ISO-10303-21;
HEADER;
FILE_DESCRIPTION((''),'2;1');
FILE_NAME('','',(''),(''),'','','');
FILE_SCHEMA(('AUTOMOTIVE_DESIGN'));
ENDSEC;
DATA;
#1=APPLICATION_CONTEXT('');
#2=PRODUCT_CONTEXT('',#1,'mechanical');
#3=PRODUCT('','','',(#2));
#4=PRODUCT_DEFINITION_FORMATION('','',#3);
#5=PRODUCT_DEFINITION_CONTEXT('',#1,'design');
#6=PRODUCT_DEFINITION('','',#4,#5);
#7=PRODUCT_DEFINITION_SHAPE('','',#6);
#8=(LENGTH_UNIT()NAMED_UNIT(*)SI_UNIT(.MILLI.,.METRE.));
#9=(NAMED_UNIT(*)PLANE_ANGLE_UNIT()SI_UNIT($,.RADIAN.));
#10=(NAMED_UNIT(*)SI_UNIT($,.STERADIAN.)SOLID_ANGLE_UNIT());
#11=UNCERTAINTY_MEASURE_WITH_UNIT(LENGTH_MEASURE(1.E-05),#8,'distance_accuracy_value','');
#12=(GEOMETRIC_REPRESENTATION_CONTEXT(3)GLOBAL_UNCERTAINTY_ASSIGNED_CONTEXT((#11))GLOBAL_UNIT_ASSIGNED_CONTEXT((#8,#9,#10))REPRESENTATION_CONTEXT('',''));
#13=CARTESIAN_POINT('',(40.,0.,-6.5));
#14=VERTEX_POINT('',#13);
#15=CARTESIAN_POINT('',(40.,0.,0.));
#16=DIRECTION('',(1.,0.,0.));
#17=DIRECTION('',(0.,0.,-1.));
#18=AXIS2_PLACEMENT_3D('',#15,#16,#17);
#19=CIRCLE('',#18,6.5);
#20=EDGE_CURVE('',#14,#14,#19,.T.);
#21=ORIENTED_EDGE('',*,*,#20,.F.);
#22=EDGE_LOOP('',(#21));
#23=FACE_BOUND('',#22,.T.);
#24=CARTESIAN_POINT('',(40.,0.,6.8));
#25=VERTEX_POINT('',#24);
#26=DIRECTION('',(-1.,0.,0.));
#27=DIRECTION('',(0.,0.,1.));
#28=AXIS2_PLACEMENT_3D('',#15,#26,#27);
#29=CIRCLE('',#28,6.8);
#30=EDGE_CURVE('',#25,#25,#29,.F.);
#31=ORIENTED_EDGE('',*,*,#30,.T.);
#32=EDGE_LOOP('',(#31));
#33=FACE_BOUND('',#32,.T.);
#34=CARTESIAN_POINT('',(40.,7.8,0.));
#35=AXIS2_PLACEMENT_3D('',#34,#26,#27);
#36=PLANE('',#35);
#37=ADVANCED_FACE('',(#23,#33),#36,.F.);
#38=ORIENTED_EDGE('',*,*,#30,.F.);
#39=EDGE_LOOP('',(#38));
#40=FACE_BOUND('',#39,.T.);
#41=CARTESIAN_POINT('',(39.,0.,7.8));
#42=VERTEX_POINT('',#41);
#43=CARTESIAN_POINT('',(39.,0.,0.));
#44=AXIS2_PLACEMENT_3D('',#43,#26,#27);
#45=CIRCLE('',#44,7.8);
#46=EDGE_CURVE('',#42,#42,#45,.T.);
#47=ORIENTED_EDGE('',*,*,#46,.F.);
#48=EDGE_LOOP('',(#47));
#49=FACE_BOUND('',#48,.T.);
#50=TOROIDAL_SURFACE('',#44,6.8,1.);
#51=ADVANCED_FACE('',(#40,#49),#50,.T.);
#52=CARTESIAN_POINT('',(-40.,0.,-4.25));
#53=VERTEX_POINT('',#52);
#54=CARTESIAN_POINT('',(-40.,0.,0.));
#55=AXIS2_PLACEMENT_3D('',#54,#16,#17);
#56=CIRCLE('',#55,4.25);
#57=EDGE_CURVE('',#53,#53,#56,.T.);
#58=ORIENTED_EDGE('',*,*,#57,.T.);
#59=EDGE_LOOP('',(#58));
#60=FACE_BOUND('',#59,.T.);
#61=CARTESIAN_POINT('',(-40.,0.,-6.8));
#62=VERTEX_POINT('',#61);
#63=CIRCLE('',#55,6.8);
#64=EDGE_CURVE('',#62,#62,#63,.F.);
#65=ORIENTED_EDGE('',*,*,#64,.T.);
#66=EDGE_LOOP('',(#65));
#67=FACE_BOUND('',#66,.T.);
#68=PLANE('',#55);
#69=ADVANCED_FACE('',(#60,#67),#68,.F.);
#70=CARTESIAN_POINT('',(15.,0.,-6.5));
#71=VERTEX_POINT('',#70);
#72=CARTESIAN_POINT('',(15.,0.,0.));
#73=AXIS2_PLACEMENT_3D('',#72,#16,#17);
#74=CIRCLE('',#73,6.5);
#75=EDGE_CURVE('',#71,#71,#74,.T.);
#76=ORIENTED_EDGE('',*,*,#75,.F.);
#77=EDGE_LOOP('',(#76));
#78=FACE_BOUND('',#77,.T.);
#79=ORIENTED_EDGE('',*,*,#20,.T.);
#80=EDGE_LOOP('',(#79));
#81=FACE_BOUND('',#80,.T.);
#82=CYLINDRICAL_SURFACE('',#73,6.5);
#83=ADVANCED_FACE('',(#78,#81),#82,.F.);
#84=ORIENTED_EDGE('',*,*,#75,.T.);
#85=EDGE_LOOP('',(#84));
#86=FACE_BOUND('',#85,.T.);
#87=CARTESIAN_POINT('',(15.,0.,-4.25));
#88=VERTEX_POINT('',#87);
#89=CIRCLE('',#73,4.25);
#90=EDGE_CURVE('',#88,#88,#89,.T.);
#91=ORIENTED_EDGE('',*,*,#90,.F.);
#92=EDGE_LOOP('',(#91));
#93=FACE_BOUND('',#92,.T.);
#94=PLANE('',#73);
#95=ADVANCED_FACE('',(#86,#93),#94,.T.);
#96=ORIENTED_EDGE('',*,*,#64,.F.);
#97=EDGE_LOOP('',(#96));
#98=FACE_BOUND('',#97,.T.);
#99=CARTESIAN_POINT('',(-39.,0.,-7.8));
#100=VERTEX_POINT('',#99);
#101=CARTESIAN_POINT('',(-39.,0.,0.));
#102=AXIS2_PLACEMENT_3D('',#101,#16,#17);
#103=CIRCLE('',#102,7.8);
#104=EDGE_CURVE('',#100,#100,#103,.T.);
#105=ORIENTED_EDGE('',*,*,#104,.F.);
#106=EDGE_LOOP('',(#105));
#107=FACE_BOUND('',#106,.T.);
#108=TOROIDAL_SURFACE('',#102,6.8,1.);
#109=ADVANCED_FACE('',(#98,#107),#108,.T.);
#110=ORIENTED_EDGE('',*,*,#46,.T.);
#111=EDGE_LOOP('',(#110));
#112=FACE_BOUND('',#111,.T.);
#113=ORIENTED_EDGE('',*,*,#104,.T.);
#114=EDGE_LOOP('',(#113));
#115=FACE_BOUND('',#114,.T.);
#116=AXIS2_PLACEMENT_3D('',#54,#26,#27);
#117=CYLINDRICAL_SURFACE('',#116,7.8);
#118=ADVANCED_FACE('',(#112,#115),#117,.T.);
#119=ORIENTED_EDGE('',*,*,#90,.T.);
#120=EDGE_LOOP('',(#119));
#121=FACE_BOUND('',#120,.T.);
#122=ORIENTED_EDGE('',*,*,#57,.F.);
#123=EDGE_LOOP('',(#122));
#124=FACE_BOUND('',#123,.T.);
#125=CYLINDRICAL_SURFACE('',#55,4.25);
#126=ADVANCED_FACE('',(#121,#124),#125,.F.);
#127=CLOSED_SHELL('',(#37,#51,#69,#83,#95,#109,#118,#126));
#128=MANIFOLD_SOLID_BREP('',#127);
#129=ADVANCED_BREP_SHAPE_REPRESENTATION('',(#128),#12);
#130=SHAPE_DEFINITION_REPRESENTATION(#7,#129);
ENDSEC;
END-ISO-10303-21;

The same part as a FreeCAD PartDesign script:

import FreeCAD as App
import Part
import Sketcher
from FreeCAD import Vector


def edges_at(feature, points):
    """Names of the edges that pass closest to the given points."""
    edges = feature.Shape.Edges
    near = lambda p: min(range(len(edges)), key=lambda i: edges[i].distToShape(Part.Vertex(*p))[0])
    return sorted({f"Edge{near(p) + 1}" for p in points})

doc = App.newDocument("Part")
body = doc.addObject("PartDesign::Body", "Body")

# Sketch on XY plane
sketch1 = body.newObject("Sketcher::SketchObject", "Sketch")
sketch1.AttachmentSupport = (doc.getObject("XY_Plane"), [""])
sketch1.MapMode = "FlatFace"
sketch1.addGeometry([
    Part.LineSegment(Vector(-40, 7.8, 0), Vector(-40, 0, 0)),
    Part.LineSegment(Vector(-40, 0, 0), Vector(40, 0, 0)),
    Part.LineSegment(Vector(40, 0, 0), Vector(40, 7.8, 0)),
    Part.LineSegment(Vector(40, 7.8, 0), Vector(-40, 7.8, 0)),
], False)
sketch1.addConstraint([
    Sketcher.Constraint("Coincident", 0, 2, 1, 1),
    Sketcher.Constraint("Coincident", 1, 2, 2, 1),
    Sketcher.Constraint("Coincident", 2, 2, 3, 1),
    Sketcher.Constraint("Coincident", 3, 2, 0, 1),
    Sketcher.Constraint("Vertical", 0),
    Sketcher.Constraint("Horizontal", 1),
    Sketcher.Constraint("Vertical", 2),
    Sketcher.Constraint("Horizontal", 3),
    Sketcher.Constraint("Symmetric", 0, 2, 1, 2, -1, 1),
    Sketcher.Constraint("DistanceX", 1, 1, 1, 2, 80.0),
    Sketcher.Constraint("DistanceY", 0, 2, 0, 1, 7.8),
])
revolution = body.newObject("PartDesign::Revolution", "Revolution")
revolution.Profile = sketch1
revolution.ReferenceAxis = (sketch1, ["H_Axis"])
revolution.Angle = 360

# Sketch on YZ plane
sketch2 = body.newObject("Sketcher::SketchObject", "Sketch001")
sketch2.AttachmentSupport = (doc.getObject("YZ_Plane"), [""])
sketch2.MapMode = "FlatFace"
sketch2.AttachmentOffset = App.Placement(Vector(0, 0, 40), App.Rotation())
sketch2.addGeometry(Part.Circle(Vector(0, 0, 0), Vector(0, 0, 1), 6.5), False)
sketch2.addConstraint([
    Sketcher.Constraint("Coincident", 0, 3, -1, 1),
    Sketcher.Constraint("Diameter", 0, 13.0),
])
pocket1 = body.newObject("PartDesign::Pocket", "Pocket")
pocket1.Profile = sketch2
pocket1.Length = 25

# Sketch on YZ plane
sketch3 = body.newObject("Sketcher::SketchObject", "Sketch002")
sketch3.AttachmentSupport = (doc.getObject("YZ_Plane"), [""])
sketch3.MapMode = "FlatFace"
sketch3.AttachmentOffset = App.Placement(Vector(0, 0, 15), App.Rotation())
sketch3.addGeometry(Part.Circle(Vector(0, 0, 0), Vector(0, 0, 1), 4.25), False)
sketch3.addConstraint([
    Sketcher.Constraint("Coincident", 0, 3, -1, 1),
    Sketcher.Constraint("Diameter", 0, 8.5),
])
pocket2 = body.newObject("PartDesign::Pocket", "Pocket001")
pocket2.Profile = sketch3
pocket2.Type = "ThroughAll"
pocket2.Midplane = True
doc.recompute()

fillet = body.newObject("PartDesign::Fillet", "Fillet")
fillet.Base = (pocket2, edges_at(pocket2, [(-40, 0, -7.8), (40, 0, -7.8)]))
fillet.Radius = 1

doc.recompute()
